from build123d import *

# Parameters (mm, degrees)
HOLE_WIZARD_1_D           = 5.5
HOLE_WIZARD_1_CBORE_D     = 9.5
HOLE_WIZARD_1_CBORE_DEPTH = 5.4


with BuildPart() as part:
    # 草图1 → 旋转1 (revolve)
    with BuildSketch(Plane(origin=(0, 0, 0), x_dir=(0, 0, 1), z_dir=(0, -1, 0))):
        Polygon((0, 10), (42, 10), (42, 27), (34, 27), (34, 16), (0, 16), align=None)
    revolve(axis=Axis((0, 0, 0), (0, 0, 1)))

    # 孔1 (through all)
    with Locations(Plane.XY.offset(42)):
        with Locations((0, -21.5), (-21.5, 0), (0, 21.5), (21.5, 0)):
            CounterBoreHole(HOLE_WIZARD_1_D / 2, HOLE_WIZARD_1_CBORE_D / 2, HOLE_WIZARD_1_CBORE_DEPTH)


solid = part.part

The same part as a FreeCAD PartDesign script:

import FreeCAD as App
import Part
import Sketcher
from FreeCAD import Vector
Q = App.Units.Quantity


def add_polygon(sketch, points):
    """Adds a closed chain of lines whose ends are joined by coincident constraints."""
    first, n = sketch.GeometryCount, len(points)
    for a, b in zip(points, points[1:] + points[:1]):
        sketch.addGeometry(Part.LineSegment(App.Vector(*a, 0), App.Vector(*b, 0)), False)
    for i in range(n):
        sketch.addConstraint(Sketcher.Constraint("Coincident", first + i, 2, first + (i + 1) % n, 1))

doc = App.newDocument("Part")
body = doc.addObject("PartDesign::Body", "Body")

# Sketch on XZ plane
sketch1 = body.newObject("Sketcher::SketchObject", "Sketch")
sketch1.AttachmentSupport = (doc.getObject("XZ_Plane"), [""])
sketch1.MapMode = "FlatFace"
add_polygon(sketch1, [(-10, 0), (-10, 42), (-27, 42), (-27, 34), (-16, 34), (-16, 0)])  # lines 0-5
sketch1.addConstraint(Sketcher.Constraint("Vertical", 0))
sketch1.addConstraint(Sketcher.Constraint("Horizontal", 1))
sketch1.addConstraint(Sketcher.Constraint("Vertical", 2))
sketch1.addConstraint(Sketcher.Constraint("Horizontal", 3))
sketch1.addConstraint(Sketcher.Constraint("Vertical", 4))
sketch1.addConstraint(Sketcher.Constraint("Horizontal", 5))
sketch1.addConstraint(Sketcher.Constraint("PointOnObject", 4, 2, -1))
sketch1.addConstraint(Sketcher.Constraint("DistanceX", 1, 2, 1, 1, Q("17 mm")))
sketch1.addConstraint(Sketcher.Constraint("DistanceX", 3, 1, 3, 2, Q("11 mm")))
sketch1.addConstraint(Sketcher.Constraint("DistanceY", 0, 1, 0, 2, Q("42 mm")))
sketch1.addConstraint(Sketcher.Constraint("DistanceY", 2, 2, 2, 1, Q("8 mm")))
sketch1.addConstraint(Sketcher.Constraint("DistanceX", 0, 2, -1, 1, Q("10 mm")))
revolution = body.newObject("PartDesign::Revolution", "Revolution")
revolution.Profile = sketch1
revolution.ReferenceAxis = (sketch1, ["V_Axis"])
revolution.Angle = 360

# Sketch on XY plane
sketch2 = body.newObject("Sketcher::SketchObject", "Sketch001")
sketch2.AttachmentSupport = (doc.getObject("XY_Plane"), [""])
sketch2.MapMode = "FlatFace"
sketch2.AttachmentOffset = App.Placement(Vector(0, 0, 42), App.Rotation())
sketch2.addGeometry(Part.Circle(Vector(0, -21.5, 0), Vector(0, 0, 1), 2.8), False)
sketch2.addGeometry(Part.Circle(Vector(-21.5, 0, 0), Vector(0, 0, 1), 2.8), False)
sketch2.addGeometry(Part.Circle(Vector(0, 21.5, 0), Vector(0, 0, 1), 2.8), False)
sketch2.addGeometry(Part.Circle(Vector(21.5, 0, 0), Vector(0, 0, 1), 2.8), False)
sketch2.addConstraint(Sketcher.Constraint("Equal", 0, 1))
sketch2.addConstraint(Sketcher.Constraint("Equal", 1, 2))
sketch2.addConstraint(Sketcher.Constraint("Equal", 2, 3))
sketch2.addConstraint(Sketcher.Constraint("Symmetric", 0, 3, 2, 3, -1, 1))
sketch2.addConstraint(Sketcher.Constraint("Symmetric", 1, 3, 3, 3, -1, 1))
sketch2.addConstraint(Sketcher.Constraint("PointOnObject", 0, 3, -2))
sketch2.addConstraint(Sketcher.Constraint("PointOnObject", 1, 3, -1))
sketch2.addConstraint(Sketcher.Constraint("Diameter", 0, Q("5.5 mm")))
sketch2.addConstraint(Sketcher.Constraint("DistanceY", 0, 3, 2, 3, Q("43 mm")))
sketch2.addConstraint(Sketcher.Constraint("DistanceX", 1, 3, 3, 3, Q("43 mm")))
doc.recompute()
hole = body.newObject("PartDesign::Hole", "Hole")
hole.Profile = sketch2
hole.ThreadType = "None"
hole.Diameter = 5.5
hole.DepthType = "ThroughAll"
hole.HoleCutType = "Counterbore"
hole.HoleCutDiameter = 9.5
hole.HoleCutDepth = 5.4

doc.recompute()
